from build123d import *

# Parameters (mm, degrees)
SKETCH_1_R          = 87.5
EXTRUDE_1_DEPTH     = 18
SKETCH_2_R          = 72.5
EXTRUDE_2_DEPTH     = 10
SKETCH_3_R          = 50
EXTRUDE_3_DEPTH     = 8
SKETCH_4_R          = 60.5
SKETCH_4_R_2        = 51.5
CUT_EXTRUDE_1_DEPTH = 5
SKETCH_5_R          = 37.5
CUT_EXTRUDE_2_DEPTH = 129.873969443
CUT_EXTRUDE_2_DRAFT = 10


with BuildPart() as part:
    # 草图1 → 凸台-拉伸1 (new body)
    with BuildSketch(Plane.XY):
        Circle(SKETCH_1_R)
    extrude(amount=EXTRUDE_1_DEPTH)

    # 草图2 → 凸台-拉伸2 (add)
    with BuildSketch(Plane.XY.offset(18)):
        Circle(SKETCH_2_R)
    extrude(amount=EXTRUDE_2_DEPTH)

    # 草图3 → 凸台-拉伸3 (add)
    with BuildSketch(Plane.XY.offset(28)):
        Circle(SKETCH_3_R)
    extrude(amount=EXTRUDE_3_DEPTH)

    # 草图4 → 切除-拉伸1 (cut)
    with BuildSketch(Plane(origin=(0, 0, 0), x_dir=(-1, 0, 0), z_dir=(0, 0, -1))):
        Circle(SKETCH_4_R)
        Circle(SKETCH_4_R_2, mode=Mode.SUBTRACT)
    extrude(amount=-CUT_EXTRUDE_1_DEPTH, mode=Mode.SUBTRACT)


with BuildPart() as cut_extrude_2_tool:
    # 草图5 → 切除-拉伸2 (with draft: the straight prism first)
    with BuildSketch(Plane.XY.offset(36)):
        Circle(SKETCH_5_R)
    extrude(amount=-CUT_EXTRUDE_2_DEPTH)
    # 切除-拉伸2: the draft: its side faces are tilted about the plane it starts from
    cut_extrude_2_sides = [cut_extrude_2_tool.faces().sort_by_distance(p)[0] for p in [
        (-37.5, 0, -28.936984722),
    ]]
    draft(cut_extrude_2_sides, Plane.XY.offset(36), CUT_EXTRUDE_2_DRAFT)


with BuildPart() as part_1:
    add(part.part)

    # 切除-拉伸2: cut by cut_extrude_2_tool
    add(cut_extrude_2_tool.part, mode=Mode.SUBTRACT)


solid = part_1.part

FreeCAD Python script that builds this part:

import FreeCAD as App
import Part
import Sketcher


def faces_at(feature, points):
    """Names of the faces that lie closest to the given points."""
    faces = feature.Shape.Faces
    near = lambda p: min(range(len(faces)), key=lambda i: faces[i].distToShape(Part.Vertex(*p))[0])
    return sorted({f"Face{near(p) + 1}" for p in points})

doc = App.newDocument("Part")
body = doc.addObject("PartDesign::Body", "Body")

# Sketch on XY plane
sketch1 = body.newObject("Sketcher::SketchObject", "Sketch")
sketch1.AttachmentSupport = (doc.getObject("XY_Plane"), [""])
sketch1.MapMode = "FlatFace"
sketch1.addGeometry(Part.Circle(App.Vector(0, 0, 0), App.Vector(0, 0, 1), 88), False)
sketch1.addConstraint(Sketcher.Constraint("Coincident", 0, 3, -1, 1))
sketch1.addConstraint(Sketcher.Constraint("Diameter", 0, 175.0))
pad1 = body.newObject("PartDesign::Pad", "Pad")
pad1.Profile = sketch1
pad1.Length = 18

# Sketch on XY plane
sketch2 = body.newObject("Sketcher::SketchObject", "Sketch001")
sketch2.AttachmentSupport = (doc.getObject("XY_Plane"), [""])
sketch2.MapMode = "FlatFace"
sketch2.AttachmentOffset = App.Placement(App.Vector(0, 0, 18), App.Rotation())
sketch2.addGeometry(Part.Circle(App.Vector(0, 0, 0), App.Vector(0, 0, 1), 72), False)
sketch2.addConstraint(Sketcher.Constraint("Coincident", 0, 3, -1, 1))
sketch2.addConstraint(Sketcher.Constraint("Diameter", 0, 145.0))
pad2 = body.newObject("PartDesign::Pad", "Pad001")
pad2.Profile = sketch2
pad2.Length = 10

# Sketch on XY plane
sketch3 = body.newObject("Sketcher::SketchObject", "Sketch002")
sketch3.AttachmentSupport = (doc.getObject("XY_Plane"), [""])
sketch3.MapMode = "FlatFace"
sketch3.AttachmentOffset = App.Placement(App.Vector(0, 0, 28), App.Rotation())
sketch3.addGeometry(Part.Circle(App.Vector(0, 0, 0), App.Vector(0, 0, 1), 50), False)
sketch3.addConstraint(Sketcher.Constraint("Coincident", 0, 3, -1, 1))
sketch3.addConstraint(Sketcher.Constraint("Diameter", 0, 100.0))
pad3 = body.newObject("PartDesign::Pad", "Pad002")
pad3.Profile = sketch3
pad3.Length = 8

# Sketch on XY plane
sketch4 = body.newObject("Sketcher::SketchObject", "Sketch003")
sketch4.AttachmentSupport = (doc.getObject("XY_Plane"), [""])
sketch4.MapMode = "FlatFace"
sketch4.addGeometry(Part.Circle(App.Vector(0, 0, 0), App.Vector(0, 0, 1), 60), False)
sketch4.addGeometry(Part.Circle(App.Vector(0, 0, 0), App.Vector(0, 0, 1), 52), False)
sketch4.addConstraint(Sketcher.Constraint("Coincident", 0, 3, -1, 1))
sketch4.addConstraint(Sketcher.Constraint("Coincident", 1, 3, -1, 1))
sketch4.addConstraint(Sketcher.Constraint("Diameter", 0, 121.0))
sketch4.addConstraint(Sketcher.Constraint("Diameter", 1, 103.0))
pocket1 = body.newObject("PartDesign::Pocket", "Pocket")
pocket1.Profile = sketch4
pocket1.Length = 5
pocket1.Reversed = True
body2 = doc.addObject("PartDesign::Body", "Body001")

# Sketch on XY plane
sketch5 = body2.newObject("Sketcher::SketchObject", "Sketch004")
sketch5.AttachmentSupport = (doc.getObject("XY_Plane001"), [""])
sketch5.MapMode = "FlatFace"
sketch5.AttachmentOffset = App.Placement(App.Vector(0, 0, 36), App.Rotation())
sketch5.addGeometry(Part.Circle(App.Vector(0, 0, 0), App.Vector(0, 0, 1), 38), False)
sketch5.addConstraint(Sketcher.Constraint("Coincident", 0, 3, -1, 1))
sketch5.addConstraint(Sketcher.Constraint("Diameter", 0, 75.0))
pad4 = body2.newObject("PartDesign::Pad", "Pad003")
pad4.Profile = sketch5
pad4.Length = 129.873969
pad4.Reversed = True
doc.recompute()

datumplane = body2.newObject("PartDesign::Plane", "DatumPlane")
datumplane.AttachmentSupport = (doc.getObject("XY_Plane001"), [""])
datumplane.MapMode = "FlatFace"
datumplane.AttachmentOffset = App.Placement(App.Vector(0, 0, 36), App.Rotation())
draft = body2.newObject("PartDesign::Draft", "Draft")
draft.Base = (pad4, faces_at(pad4, [(-37.5, 0, -28.937)]))
draft.NeutralPlane = (datumplane, [""])
draft.Angle = 10
draft.Reversed = False
doc.recompute()

boolean = body.newObject("PartDesign::Boolean", "Boolean")
boolean.Type = "Cut"
boolean.addObjects([body2])

doc.recompute()
